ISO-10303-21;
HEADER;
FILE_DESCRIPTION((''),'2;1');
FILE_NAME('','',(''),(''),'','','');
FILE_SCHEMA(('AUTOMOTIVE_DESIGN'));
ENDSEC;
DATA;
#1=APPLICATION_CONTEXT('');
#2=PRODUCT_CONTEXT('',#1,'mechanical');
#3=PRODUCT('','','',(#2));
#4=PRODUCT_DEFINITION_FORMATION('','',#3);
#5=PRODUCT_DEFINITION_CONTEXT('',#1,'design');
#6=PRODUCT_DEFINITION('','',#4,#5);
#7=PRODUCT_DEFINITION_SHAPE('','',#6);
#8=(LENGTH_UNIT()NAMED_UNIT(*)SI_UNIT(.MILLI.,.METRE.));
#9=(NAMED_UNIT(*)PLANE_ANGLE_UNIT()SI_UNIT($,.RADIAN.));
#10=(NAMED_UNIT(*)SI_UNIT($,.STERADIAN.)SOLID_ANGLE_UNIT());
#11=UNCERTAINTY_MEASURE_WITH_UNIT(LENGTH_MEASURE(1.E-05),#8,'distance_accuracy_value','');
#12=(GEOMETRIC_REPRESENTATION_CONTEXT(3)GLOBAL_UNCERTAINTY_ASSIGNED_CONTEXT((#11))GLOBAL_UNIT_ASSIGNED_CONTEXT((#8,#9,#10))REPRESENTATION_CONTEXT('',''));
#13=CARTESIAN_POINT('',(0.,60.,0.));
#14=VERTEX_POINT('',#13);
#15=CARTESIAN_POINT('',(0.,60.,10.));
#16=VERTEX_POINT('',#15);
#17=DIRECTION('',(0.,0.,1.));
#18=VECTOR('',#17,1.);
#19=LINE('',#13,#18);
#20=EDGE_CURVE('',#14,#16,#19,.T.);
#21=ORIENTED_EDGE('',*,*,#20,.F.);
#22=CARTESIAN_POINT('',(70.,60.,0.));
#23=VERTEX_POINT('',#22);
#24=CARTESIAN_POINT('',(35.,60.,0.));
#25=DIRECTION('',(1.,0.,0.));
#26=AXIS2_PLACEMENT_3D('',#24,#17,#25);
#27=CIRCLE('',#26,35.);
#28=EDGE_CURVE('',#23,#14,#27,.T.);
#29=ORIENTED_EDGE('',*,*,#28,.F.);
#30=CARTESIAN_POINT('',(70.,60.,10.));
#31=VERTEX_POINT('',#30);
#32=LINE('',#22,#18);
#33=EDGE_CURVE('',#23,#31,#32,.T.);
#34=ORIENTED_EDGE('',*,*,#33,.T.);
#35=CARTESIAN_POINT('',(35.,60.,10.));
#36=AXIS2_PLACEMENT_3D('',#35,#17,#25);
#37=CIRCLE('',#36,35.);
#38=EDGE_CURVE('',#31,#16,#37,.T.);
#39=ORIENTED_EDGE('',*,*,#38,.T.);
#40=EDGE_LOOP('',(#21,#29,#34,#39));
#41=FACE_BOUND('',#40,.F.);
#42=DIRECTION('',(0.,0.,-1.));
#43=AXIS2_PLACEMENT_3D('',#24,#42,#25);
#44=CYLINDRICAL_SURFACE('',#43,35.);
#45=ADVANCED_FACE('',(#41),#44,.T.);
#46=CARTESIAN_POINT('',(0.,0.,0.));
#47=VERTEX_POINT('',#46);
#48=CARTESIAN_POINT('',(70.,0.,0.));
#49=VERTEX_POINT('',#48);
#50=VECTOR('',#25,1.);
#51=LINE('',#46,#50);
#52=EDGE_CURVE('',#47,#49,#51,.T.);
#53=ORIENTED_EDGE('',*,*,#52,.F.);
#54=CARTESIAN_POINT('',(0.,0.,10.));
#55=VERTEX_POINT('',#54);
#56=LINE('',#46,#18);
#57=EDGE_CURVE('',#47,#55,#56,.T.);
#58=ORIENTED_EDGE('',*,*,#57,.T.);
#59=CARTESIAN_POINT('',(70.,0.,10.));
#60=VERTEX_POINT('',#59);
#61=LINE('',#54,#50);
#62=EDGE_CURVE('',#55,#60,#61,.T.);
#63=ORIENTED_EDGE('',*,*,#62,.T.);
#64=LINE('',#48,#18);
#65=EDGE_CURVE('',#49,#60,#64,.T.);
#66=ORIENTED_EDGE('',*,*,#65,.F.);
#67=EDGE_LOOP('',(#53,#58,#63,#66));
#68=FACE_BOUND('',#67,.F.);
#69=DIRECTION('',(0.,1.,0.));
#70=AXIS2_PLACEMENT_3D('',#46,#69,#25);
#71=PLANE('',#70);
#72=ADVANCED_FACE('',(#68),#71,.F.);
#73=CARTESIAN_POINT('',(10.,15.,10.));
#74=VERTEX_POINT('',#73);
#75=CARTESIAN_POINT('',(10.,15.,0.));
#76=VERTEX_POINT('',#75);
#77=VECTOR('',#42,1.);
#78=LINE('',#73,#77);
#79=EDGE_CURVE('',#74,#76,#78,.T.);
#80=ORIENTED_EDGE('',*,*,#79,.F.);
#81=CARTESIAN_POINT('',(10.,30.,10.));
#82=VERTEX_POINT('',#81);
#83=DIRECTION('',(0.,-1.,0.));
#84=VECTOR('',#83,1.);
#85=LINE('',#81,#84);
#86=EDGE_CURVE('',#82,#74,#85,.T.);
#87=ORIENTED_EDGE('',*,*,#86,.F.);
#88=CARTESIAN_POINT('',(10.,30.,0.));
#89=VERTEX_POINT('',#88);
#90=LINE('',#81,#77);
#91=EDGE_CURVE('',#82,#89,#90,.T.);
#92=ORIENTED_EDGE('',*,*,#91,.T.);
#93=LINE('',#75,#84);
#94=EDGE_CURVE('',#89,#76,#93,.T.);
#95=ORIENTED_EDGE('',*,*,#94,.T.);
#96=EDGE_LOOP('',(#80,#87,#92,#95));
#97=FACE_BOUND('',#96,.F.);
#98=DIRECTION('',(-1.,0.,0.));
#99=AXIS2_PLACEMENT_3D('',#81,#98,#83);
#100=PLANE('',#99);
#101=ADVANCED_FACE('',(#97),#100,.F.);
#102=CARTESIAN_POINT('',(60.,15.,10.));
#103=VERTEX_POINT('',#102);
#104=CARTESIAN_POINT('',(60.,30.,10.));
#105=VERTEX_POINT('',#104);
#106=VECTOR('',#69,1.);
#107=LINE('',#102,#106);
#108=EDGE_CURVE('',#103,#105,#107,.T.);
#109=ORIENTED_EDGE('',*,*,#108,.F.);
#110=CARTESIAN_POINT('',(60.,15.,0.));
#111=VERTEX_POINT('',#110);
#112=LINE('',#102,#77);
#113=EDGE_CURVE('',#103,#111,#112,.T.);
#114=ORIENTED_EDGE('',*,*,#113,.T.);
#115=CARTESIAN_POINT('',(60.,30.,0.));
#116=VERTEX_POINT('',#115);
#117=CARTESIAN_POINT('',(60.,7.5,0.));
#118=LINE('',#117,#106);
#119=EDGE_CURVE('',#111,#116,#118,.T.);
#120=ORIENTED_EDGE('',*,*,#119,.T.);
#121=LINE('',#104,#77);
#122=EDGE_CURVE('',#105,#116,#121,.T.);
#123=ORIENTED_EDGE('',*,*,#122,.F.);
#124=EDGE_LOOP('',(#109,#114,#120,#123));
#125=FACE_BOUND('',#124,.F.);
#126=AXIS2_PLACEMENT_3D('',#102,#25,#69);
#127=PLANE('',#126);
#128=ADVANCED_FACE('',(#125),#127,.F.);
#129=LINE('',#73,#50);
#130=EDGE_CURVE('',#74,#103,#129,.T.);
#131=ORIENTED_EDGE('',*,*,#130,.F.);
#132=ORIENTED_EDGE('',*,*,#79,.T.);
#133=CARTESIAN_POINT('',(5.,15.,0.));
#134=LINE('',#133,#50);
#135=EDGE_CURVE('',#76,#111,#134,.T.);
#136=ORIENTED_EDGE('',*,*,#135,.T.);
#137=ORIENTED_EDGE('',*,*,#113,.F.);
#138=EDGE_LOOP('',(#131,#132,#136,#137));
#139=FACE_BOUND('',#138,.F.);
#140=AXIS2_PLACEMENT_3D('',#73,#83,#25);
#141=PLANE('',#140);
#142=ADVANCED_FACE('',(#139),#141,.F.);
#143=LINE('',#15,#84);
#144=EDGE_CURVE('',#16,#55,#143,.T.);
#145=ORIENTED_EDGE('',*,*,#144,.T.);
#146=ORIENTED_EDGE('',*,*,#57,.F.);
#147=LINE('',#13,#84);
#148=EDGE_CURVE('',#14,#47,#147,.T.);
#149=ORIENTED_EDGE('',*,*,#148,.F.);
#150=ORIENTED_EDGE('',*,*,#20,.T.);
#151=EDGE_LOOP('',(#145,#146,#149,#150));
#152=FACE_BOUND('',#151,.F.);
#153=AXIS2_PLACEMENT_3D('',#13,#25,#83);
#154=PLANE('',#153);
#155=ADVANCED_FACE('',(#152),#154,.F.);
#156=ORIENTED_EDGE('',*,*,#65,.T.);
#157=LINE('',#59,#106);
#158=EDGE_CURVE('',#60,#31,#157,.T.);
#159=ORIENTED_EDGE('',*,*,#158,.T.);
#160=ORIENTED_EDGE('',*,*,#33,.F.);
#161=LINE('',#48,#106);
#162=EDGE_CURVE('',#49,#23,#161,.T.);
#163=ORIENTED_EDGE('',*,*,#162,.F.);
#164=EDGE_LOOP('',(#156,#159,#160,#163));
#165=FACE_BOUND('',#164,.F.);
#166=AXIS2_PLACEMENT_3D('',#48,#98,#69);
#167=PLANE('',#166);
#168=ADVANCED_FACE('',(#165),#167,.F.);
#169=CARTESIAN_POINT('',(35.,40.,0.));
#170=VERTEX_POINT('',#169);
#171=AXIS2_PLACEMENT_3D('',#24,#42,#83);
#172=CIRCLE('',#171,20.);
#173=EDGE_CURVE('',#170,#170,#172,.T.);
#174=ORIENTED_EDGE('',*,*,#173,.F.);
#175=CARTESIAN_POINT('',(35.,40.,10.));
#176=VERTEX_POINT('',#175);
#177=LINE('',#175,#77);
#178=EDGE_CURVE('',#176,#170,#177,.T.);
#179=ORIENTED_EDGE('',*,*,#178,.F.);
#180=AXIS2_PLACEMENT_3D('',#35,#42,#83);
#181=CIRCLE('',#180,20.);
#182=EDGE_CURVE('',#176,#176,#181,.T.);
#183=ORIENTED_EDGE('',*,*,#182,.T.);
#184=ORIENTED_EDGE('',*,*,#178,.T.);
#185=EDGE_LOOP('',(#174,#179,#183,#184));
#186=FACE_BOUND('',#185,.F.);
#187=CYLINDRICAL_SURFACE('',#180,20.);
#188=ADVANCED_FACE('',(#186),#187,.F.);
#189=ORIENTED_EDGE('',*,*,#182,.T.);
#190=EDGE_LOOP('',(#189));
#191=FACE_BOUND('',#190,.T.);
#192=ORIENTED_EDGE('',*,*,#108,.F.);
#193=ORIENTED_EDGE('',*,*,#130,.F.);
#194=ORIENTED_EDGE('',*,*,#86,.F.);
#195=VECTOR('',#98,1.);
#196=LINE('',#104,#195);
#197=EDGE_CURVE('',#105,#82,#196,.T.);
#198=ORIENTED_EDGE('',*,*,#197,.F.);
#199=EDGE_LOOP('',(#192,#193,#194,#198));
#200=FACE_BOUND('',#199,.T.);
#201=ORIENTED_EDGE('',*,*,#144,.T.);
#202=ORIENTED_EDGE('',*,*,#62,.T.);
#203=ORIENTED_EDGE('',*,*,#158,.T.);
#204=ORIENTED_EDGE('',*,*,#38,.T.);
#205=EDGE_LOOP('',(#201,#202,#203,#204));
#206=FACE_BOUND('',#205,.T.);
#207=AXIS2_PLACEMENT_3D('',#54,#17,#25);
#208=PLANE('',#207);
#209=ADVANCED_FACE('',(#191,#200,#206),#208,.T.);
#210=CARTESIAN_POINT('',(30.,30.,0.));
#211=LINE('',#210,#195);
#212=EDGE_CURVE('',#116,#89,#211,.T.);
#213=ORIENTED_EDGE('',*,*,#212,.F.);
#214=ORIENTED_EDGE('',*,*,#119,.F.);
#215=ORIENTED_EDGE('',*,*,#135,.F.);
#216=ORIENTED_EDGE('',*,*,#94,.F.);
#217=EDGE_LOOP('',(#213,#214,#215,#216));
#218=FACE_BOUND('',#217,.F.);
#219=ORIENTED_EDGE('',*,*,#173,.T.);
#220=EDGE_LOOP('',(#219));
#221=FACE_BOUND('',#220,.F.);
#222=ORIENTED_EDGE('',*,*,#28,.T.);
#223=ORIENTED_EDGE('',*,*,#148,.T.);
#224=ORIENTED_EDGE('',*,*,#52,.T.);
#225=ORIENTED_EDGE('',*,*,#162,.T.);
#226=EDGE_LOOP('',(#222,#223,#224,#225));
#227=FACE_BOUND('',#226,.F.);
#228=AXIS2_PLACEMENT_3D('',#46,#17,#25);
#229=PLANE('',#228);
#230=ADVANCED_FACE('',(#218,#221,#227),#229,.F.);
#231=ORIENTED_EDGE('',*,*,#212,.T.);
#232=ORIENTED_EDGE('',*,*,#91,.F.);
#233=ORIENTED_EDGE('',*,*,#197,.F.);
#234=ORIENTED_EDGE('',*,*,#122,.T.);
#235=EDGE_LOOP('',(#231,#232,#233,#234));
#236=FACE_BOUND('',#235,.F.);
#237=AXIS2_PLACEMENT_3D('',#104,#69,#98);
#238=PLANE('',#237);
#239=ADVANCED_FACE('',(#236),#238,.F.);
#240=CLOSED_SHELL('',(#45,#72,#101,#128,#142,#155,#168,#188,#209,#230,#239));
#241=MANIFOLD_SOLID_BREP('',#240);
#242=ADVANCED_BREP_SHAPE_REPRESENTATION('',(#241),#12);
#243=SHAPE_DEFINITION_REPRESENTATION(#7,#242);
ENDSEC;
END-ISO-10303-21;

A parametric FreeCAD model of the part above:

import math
import FreeCAD as App
import Part
import Sketcher
Q = App.Units.Quantity


def add_polygon(sketch, points):
    """Adds a closed chain of lines whose ends are joined by coincident constraints."""
    first, n = sketch.GeometryCount, len(points)
    for a, b in zip(points, points[1:] + points[:1]):
        sketch.addGeometry(Part.LineSegment(App.Vector(*a, 0), App.Vector(*b, 0)), False)
    for i in range(n):
        sketch.addConstraint(Sketcher.Constraint("Coincident", first + i, 2, first + (i + 1) % n, 1))

doc = App.newDocument("Part")
body = doc.addObject("PartDesign::Body", "Body")

# Sketch on XY plane
sketch1 = doc.addObject("Sketcher::SketchObject", "Sketch")
body.addObject(sketch1)
sketch1.AttachmentSupport = (doc.XY_Plane, [""])
sketch1.MapMode = "FlatFace"
sketch1.addGeometry([
    Part.LineSegment(App.Vector(0, 60, 0), App.Vector(0, 0, 0)),
    Part.LineSegment(App.Vector(0, 0, 0), App.Vector(70, 0, 0)),
    Part.LineSegment(App.Vector(70, 0, 0), App.Vector(70, 60, 0)),
    Part.ArcOfCircle(Part.Circle(App.Vector(35, 60, 0), App.Vector(0, 0, 1), 35), math.radians(0), math.radians(180)),
], False)
sketch1.addConstraint([
    Sketcher.Constraint("Coincident", 0, 2, 1, 1),
    Sketcher.Constraint("Coincident", 1, 2, 2, 1),
    Sketcher.Constraint("Tangent", 2, 2, 3, 1),
    Sketcher.Constraint("Tangent", 3, 2, 0, 1),
    Sketcher.Constraint("Vertical", 0),
    Sketcher.Constraint("Horizontal", 1),
    Sketcher.Constraint("Vertical", 2),
    Sketcher.Constraint("Coincident", 0, 2, -1, 1),
    Sketcher.Constraint("Radius", 3, Q("35 mm")),
    Sketcher.Constraint("DistanceY", 0, 2, 0, 1, Q("60 mm")),
])
pad1 = doc.addObject("PartDesign::Pad", "Pad")
body.addObject(pad1)
pad1.Profile = sketch1
pad1.Length = 10

# Sketch on XY plane
sketch2 = doc.addObject("Sketcher::SketchObject", "Sketch001")
body.addObject(sketch2)
sketch2.AttachmentSupport = (doc.XY_Plane, [""])
sketch2.MapMode = "FlatFace"
sketch2.AttachmentOffset = App.Placement(App.Vector(0, 0, 10), App.Rotation())
sketch2.addGeometry(Part.Circle(App.Vector(35, 60, 0), App.Vector(0, 0, 1), 20), False)
sketch2.addConstraint([
    Sketcher.Constraint("Diameter", 0, Q("40 mm")),
    Sketcher.Constraint("DistanceX", -1, 1, 0, 3, Q("35 mm")),
    Sketcher.Constraint("DistanceY", -1, 1, 0, 3, Q("60 mm")),
])
doc.recompute()
hole = doc.addObject("PartDesign::Hole", "Hole")
body.addObject(hole)
hole.Profile = sketch2
hole.ThreadType = "None"
hole.Diameter = 40
hole.DepthType = "ThroughAll"

# Sketch on XY plane
sketch3 = doc.addObject("Sketcher::SketchObject", "Sketch002")
body.addObject(sketch3)
sketch3.AttachmentSupport = (doc.XY_Plane, [""])
sketch3.MapMode = "FlatFace"
sketch3.AttachmentOffset = App.Placement(App.Vector(0, 0, 10), App.Rotation())
add_polygon(sketch3, [(10, 30), (10, 15), (60, 15), (60, 30)])  # lines 0-3
sketch3.addConstraint([
    Sketcher.Constraint("Vertical", 0),
    Sketcher.Constraint("Horizontal", 1),
    Sketcher.Constraint("Vertical", 2),
    Sketcher.Constraint("Horizontal", 3),
    Sketcher.Constraint("DistanceX", 1, 1, 1, 2, Q("50 mm")),
    Sketcher.Constraint("DistanceY", 0, 2, 0, 1, Q("15 mm")),
    Sketcher.Constraint("DistanceX", -1, 1, 0, 2, Q("10 mm")),
    Sketcher.Constraint("DistanceY", -1, 1, 0, 2, Q("15 mm")),
])
pocket1 = doc.addObject("PartDesign::Pocket", "Pocket")
body.addObject(pocket1)
pocket1.Profile = sketch3
pocket1.Type = "ThroughAll"

doc.recompute()
